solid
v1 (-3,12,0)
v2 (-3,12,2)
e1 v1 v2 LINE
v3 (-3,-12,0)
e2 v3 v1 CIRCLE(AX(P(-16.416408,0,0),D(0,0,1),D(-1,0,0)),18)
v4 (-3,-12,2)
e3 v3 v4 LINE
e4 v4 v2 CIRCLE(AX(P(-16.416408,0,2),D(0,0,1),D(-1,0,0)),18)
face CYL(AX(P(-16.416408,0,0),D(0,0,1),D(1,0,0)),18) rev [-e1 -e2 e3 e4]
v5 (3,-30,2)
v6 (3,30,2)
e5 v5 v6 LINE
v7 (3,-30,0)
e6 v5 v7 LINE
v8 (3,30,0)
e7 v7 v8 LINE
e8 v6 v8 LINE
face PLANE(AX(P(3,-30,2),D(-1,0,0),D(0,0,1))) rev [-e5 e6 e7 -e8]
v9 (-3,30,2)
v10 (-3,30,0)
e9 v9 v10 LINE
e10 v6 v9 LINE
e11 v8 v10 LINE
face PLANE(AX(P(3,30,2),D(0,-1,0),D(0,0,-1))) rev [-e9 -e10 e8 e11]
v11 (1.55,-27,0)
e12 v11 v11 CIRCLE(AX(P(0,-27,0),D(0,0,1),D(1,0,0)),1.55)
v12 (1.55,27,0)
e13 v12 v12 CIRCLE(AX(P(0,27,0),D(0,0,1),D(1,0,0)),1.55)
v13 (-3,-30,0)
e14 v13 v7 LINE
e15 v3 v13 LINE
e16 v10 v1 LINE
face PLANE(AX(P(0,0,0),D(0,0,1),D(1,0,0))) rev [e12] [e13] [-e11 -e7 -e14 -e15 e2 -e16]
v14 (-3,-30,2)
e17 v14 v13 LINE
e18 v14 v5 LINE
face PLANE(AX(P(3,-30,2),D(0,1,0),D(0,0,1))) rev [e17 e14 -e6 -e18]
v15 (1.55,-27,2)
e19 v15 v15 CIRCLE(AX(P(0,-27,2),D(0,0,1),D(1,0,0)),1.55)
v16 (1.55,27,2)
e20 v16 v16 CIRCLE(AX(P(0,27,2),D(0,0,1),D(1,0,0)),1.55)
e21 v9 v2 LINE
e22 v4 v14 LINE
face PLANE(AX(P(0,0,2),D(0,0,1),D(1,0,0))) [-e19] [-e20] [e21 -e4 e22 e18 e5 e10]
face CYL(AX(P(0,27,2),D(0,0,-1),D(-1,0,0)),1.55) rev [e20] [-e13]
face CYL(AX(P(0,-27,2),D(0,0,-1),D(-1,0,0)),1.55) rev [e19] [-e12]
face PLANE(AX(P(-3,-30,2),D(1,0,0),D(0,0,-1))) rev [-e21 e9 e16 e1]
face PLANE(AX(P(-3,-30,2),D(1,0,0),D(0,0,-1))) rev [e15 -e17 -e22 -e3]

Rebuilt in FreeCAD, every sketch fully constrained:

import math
import FreeCAD as App
import Part
import Sketcher
from FreeCAD import Vector


def add_polygon(sketch, points):
    """Adds a closed chain of lines whose ends are joined by coincident constraints."""
    first, n = sketch.GeometryCount, len(points)
    for a, b in zip(points, points[1:] + points[:1]):
        sketch.addGeometry(Part.LineSegment(App.Vector(*a, 0), App.Vector(*b, 0)), False)
    for i in range(n):
        sketch.addConstraint(Sketcher.Constraint("Coincident", first + i, 2, first + (i + 1) % n, 1))

doc = App.newDocument("Part")
body = doc.addObject("PartDesign::Body", "Body")

sketch1 = body.newObject("Sketcher::SketchObject", "Sketch")
sketch1.AttachmentSupport = (doc.getObject("XY_Plane"), [""])
sketch1.MapMode = "FlatFace"
add_polygon(sketch1, [(-3, 30), (-3, -30), (3, -30), (3, 30)])
sketch1.addGeometry(Part.Circle(Vector(0, -27, 0), Vector(0, 0, 1), 1.6), False)
sketch1.addGeometry(Part.Circle(Vector(0, 27, 0), Vector(0, 0, 1), 1.6), False)
sketch1.addConstraint([
    Sketcher.Constraint("Vertical", 0),
    Sketcher.Constraint("Horizontal", 1),
    Sketcher.Constraint("Vertical", 2),
    Sketcher.Constraint("Horizontal", 3),
    Sketcher.Constraint("Equal", 4, 5),
    Sketcher.Constraint("Symmetric", 4, 3, 5, 3, -1, 1),
    Sketcher.Constraint("Symmetric", 0, 2, 2, 2, -1, 1),
    Sketcher.Constraint("PointOnObject", 4, 3, -2),
    Sketcher.Constraint("Diameter", 4, 3.1),
    Sketcher.Constraint("DistanceX", 1, 1, 1, 2, 6.0),
    Sketcher.Constraint("DistanceY", 0, 2, 0, 1, 60.0),
    Sketcher.Constraint("DistanceY", 4, 3, -1, 1, 27.0),
])
pad1 = body.newObject("PartDesign::Pad", "Pad")
pad1.Profile = sketch1
pad1.Length = 2

sketch2 = body.newObject("Sketcher::SketchObject", "Sketch001")
sketch2.AttachmentSupport = (doc.getObject("XY_Plane"), [""])
sketch2.MapMode = "FlatFace"
sketch2.AttachmentOffset = App.Placement(Vector(0, 0, 2), App.Rotation())
sketch2.addGeometry([
    Part.LineSegment(Vector(-3, 12, 0), Vector(-3, -12, 0)),
    Part.ArcOfCircle(Part.Circle(Vector(-16, 0, 0), Vector(0, 0, 1), 18), math.radians(-42), math.radians(42)),
], False)
sketch2.addConstraint([
    Sketcher.Constraint("Coincident", 0, 1, 1, 2),
    Sketcher.Constraint("Coincident", 1, 1, 0, 2),
    Sketcher.Constraint("Vertical", 0),
    Sketcher.Constraint("PointOnObject", 1, 3, -1),
    Sketcher.Constraint("Radius", 1, 18.0),
    Sketcher.Constraint("DistanceY", 0, 2, 0, 1, 24.0),
    Sketcher.Constraint("DistanceX", 0, 1, -1, 1, 3.0),
])
pocket1 = body.newObject("PartDesign::Pocket", "Pocket")
pocket1.Profile = sketch2
pocket1.Type = "ThroughAll"

doc.recompute()
